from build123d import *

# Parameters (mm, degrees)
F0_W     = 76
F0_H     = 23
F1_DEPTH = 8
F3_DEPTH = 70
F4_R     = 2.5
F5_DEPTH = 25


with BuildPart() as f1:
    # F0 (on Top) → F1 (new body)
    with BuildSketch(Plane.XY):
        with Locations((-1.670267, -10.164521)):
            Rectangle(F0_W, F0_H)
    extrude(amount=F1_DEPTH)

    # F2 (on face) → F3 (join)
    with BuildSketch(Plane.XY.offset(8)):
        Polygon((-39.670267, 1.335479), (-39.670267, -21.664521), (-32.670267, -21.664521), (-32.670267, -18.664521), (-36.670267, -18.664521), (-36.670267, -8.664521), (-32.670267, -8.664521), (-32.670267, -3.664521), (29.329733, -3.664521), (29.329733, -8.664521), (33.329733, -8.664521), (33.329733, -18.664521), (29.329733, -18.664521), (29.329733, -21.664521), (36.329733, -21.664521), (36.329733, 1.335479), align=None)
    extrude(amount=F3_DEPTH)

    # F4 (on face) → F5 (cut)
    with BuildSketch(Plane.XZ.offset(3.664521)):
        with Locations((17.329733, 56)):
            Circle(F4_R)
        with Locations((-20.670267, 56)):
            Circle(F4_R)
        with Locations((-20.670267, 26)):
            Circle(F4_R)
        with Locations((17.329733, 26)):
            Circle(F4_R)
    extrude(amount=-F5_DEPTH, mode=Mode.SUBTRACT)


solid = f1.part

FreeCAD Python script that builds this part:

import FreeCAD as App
import Part
import Sketcher

V = App.Vector
Q = App.Units.Quantity


def add_polygon(sketch, points):
    """Adds a closed chain of lines whose ends are joined by coincident constraints."""
    first, n = sketch.GeometryCount, len(points)
    for a, b in zip(points, points[1:] + points[:1]):
        sketch.addGeometry(Part.LineSegment(App.Vector(*a, 0), App.Vector(*b, 0)), False)
    for i in range(n):
        sketch.addConstraint(Sketcher.Constraint("Coincident", first + i, 2, first + (i + 1) % n, 1))

doc = App.newDocument("Part")
body = doc.addObject("PartDesign::Body", "Body")

# Sketch on XY plane
sketch1 = body.newObject("Sketcher::SketchObject", "Sketch")
sketch1.AttachmentSupport = (doc.getObject("XY_Plane"), [""])
sketch1.MapMode = "FlatFace"
add_polygon(sketch1, [(-40, 1), (-40, -22), (36, -22), (36, 1)])  # lines 0-3
sketch1.addConstraint([
    Sketcher.Constraint("Vertical", 0),
    Sketcher.Constraint("Horizontal", 1),
    Sketcher.Constraint("Vertical", 2),
    Sketcher.Constraint("Horizontal", 3),
    Sketcher.Constraint("DistanceX", 1, 1, 1, 2, Q("76 mm")),
    Sketcher.Constraint("DistanceY", 0, 2, 0, 1, Q("23 mm")),
    Sketcher.Constraint("DistanceY", 0, 2, -1, 1, Q("21.664521 mm")),
    Sketcher.Constraint("DistanceX", 0, 2, -1, 1, Q("39.670267 mm")),
])
pad1 = body.newObject("PartDesign::Pad", "Pad")
pad1.Profile = sketch1
pad1.Length = 8

# Sketch on XY plane
sketch2 = body.newObject("Sketcher::SketchObject", "Sketch001")
sketch2.AttachmentSupport = (doc.getObject("XY_Plane"), [""])
sketch2.MapMode = "FlatFace"
sketch2.AttachmentOffset = App.Placement(V(0, 0, 8), App.Rotation())
add_polygon(sketch2, [(-39.7, 1.3), (-39.7, -21.7), (-32.7, -21.7), (-32.7, -18.7), (-36.7, -18.7), (-36.7, -8.7), (-32.7, -8.7), (-32.7, -3.7), (29.3, -3.7), (29.3, -8.7), (33.3, -8.7), (33.3, -18.7), (29.3, -18.7), (29.3, -21.7), (36.3, -21.7), (36.3, 1.3)])  # lines 0-15
sketch2.addConstraint([
    Sketcher.Constraint("Vertical", 0),
    Sketcher.Constraint("Horizontal", 1),
    Sketcher.Constraint("Vertical", 2),
    Sketcher.Constraint("Horizontal", 3),
    Sketcher.Constraint("Vertical", 4),
    Sketcher.Constraint("Horizontal", 5),
    Sketcher.Constraint("Vertical", 6),
    Sketcher.Constraint("Horizontal", 7),
    Sketcher.Constraint("Vertical", 8),
    Sketcher.Constraint("Horizontal", 9),
    Sketcher.Constraint("Vertical", 10),
    Sketcher.Constraint("Horizontal", 11),
    Sketcher.Constraint("Vertical", 12),
    Sketcher.Constraint("Horizontal", 13),
    Sketcher.Constraint("Vertical", 14),
    Sketcher.Constraint("Horizontal", 15),
    Sketcher.Constraint("Horizontal", 5, 2, 8, 2),
    Sketcher.Constraint("Horizontal", 3, 2, 10, 2),
    Sketcher.Constraint("Horizontal", 1, 2, 12, 2),
    Sketcher.Constraint("Vertical", 2, 2, 5, 2),
    Sketcher.Constraint("Vertical", 8, 2, 11, 2),
    Sketcher.Constraint("Equal", 5, 9),
    Sketcher.Constraint("Equal", 1, 13),
    Sketcher.Constraint("DistanceX", 1, 1, 1, 2, Q("7 mm")),
    Sketcher.Constraint("DistanceX", 3, 2, 3, 1, Q("4 mm")),
    Sketcher.Constraint("DistanceX", 7, 1, 7, 2, Q("62 mm")),
    Sketcher.Constraint("DistanceY", 0, 2, 0, 1, Q("23 mm")),
    Sketcher.Constraint("DistanceY", 2, 1, 2, 2, Q("3 mm")),
    Sketcher.Constraint("DistanceY", 4, 1, 4, 2, Q("10 mm")),
    Sketcher.Constraint("DistanceY", 6, 1, 6, 2, Q("5 mm")),
    Sketcher.Constraint("DistanceY", 0, 2, -1, 1, Q("21.664521 mm")),
    Sketcher.Constraint("DistanceX", 0, 2, -1, 1, Q("39.670267 mm")),
])
pad2 = body.newObject("PartDesign::Pad", "Pad001")
pad2.Profile = sketch2
pad2.Length = 70

# Sketch on XZ plane
sketch3 = body.newObject("Sketcher::SketchObject", "Sketch002")
sketch3.AttachmentSupport = (doc.getObject("XZ_Plane"), [""])
sketch3.MapMode = "FlatFace"
sketch3.AttachmentOffset = App.Placement(V(0, 0, 3.664521), App.Rotation())
sketch3.addGeometry([
    Part.Circle(V(17.3, 56, 0), V(0, 0, 1), 2.5),
    Part.Circle(V(-20.7, 56, 0), V(0, 0, 1), 2.5),
    Part.Circle(V(-20.7, 26, 0), V(0, 0, 1), 2.5),
    Part.Circle(V(17.3, 26, 0), V(0, 0, 1), 2.5),
], False)
sketch3.addConstraint([
    Sketcher.Constraint("Equal", 0, 1),
    Sketcher.Constraint("Equal", 1, 2),
    Sketcher.Constraint("Equal", 2, 3),
    Sketcher.Constraint("Horizontal", 0, 3, 1, 3),
    Sketcher.Constraint("Horizontal", 2, 3, 3, 3),
    Sketcher.Constraint("Vertical", 1, 3, 2, 3),
    Sketcher.Constraint("Vertical", 0, 3, 3, 3),
    Sketcher.Constraint("Diameter", 0, Q("5 mm")),
    Sketcher.Constraint("DistanceY", -1, 1, 0, 3, Q("56 mm")),
    Sketcher.Constraint("DistanceY", -1, 1, 2, 3, Q("26 mm")),
    Sketcher.Constraint("DistanceX", 1, 3, 0, 3, Q("38 mm")),
    Sketcher.Constraint("DistanceX", -1, 1, 0, 3, Q("17.329733 mm")),
])
pocket1 = body.newObject("PartDesign::Pocket", "Pocket")
pocket1.Profile = sketch3
pocket1.Length = 25

doc.recompute()
